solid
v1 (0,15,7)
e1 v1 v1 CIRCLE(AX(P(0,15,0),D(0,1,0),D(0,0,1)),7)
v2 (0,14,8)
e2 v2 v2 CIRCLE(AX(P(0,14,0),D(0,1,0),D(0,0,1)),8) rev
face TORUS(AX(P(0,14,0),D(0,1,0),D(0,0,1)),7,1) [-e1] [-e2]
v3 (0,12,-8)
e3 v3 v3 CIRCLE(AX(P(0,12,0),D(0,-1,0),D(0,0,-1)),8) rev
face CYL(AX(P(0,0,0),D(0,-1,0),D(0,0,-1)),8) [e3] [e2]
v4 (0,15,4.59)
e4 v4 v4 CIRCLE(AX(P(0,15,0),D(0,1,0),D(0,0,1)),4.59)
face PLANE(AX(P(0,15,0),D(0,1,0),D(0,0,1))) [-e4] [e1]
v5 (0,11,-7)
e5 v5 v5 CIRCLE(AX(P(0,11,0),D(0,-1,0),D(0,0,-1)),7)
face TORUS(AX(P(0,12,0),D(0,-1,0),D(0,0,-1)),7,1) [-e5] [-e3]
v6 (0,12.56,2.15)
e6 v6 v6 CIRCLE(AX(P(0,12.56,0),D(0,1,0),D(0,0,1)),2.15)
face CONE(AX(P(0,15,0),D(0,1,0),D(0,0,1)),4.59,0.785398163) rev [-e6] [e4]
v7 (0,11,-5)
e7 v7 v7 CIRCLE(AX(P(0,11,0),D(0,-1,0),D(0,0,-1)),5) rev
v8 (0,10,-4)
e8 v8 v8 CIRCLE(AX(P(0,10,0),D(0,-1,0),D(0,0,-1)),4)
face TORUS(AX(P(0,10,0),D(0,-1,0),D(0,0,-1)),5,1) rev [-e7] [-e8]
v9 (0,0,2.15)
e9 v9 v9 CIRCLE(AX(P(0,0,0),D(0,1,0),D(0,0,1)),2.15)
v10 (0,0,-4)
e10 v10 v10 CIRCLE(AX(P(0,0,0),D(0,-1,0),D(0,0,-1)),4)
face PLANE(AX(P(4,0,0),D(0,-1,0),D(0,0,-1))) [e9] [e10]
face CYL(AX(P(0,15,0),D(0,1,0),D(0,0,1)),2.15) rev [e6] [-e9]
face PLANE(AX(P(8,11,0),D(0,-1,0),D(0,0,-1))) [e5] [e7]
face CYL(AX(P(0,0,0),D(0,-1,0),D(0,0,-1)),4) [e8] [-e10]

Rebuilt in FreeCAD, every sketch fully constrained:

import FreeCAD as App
import Part
import Sketcher


def edges_at(feature, points):
    """Names of the edges that pass closest to the given points."""
    edges = feature.Shape.Edges
    near = lambda p: min(range(len(edges)), key=lambda i: edges[i].distToShape(Part.Vertex(*p))[0])
    return sorted({f"Edge{near(p) + 1}" for p in points})


def add_polygon(sketch, points):
    """Adds a closed chain of lines whose ends are joined by coincident constraints."""
    first, n = sketch.GeometryCount, len(points)
    for a, b in zip(points, points[1:] + points[:1]):
        sketch.addGeometry(Part.LineSegment(App.Vector(*a, 0), App.Vector(*b, 0)), False)
    for i in range(n):
        sketch.addConstraint(Sketcher.Constraint("Coincident", first + i, 2, first + (i + 1) % n, 1))

doc = App.newDocument("Part")
body = doc.addObject("PartDesign::Body", "Body")

sketch1 = doc.addObject("Sketcher::SketchObject", "Sketch")
body.addObject(sketch1)
sketch1.AttachmentSupport = (doc.XY_Plane, [""])
sketch1.MapMode = "FlatFace"
add_polygon(sketch1, [(8, 15), (0, 15), (0, 0), (4, 0), (4, 11), (8, 11)])
sketch1.addConstraint([
    Sketcher.Constraint("Horizontal", 0),
    Sketcher.Constraint("Vertical", 1),
    Sketcher.Constraint("Horizontal", 2),
    Sketcher.Constraint("Vertical", 3),
    Sketcher.Constraint("Horizontal", 4),
    Sketcher.Constraint("Vertical", 5),
    Sketcher.Constraint("Coincident", 1, 2, -1, 1),
    Sketcher.Constraint("Equal", 2, 4),
    Sketcher.Constraint("Equal", 4, 5),
    Sketcher.Constraint("DistanceX", 0, 2, 0, 1, 8.0),
    Sketcher.Constraint("DistanceY", 1, 2, 1, 1, 15.0),
])
revolution = doc.addObject("PartDesign::Revolution", "Revolution")
body.addObject(revolution)
revolution.Profile = sketch1
revolution.ReferenceAxis = (sketch1, ["V_Axis"])
revolution.Angle = 360
doc.recompute()

fillet = doc.addObject("PartDesign::Fillet", "Fillet")
body.addObject(fillet)
fillet.Base = (revolution, edges_at(revolution, [(0, 11, 4), (0, 11, 8), (0, 15, 8)]))
fillet.Radius = 1

sketch2 = doc.addObject("Sketcher::SketchObject", "Sketch001")
body.addObject(sketch2)
sketch2.AttachmentSupport = (doc.XZ_Plane, [""])
sketch2.MapMode = "FlatFace"
sketch2.AttachmentOffset = App.Placement(App.Vector(0, 0, -15), App.Rotation())
sketch2.addGeometry(Part.Circle(App.Vector(0, 0, 0), App.Vector(0, 0, 1), 2.1), False)
sketch2.addConstraint([
    Sketcher.Constraint("Coincident", 0, 3, -1, 1),
    Sketcher.Constraint("Diameter", 0, 4.3),
])
doc.recompute()
hole = doc.addObject("PartDesign::Hole", "Hole")
body.addObject(hole)
hole.Profile = sketch2
hole.ThreadType = "None"
hole.Diameter = 4.3
hole.DepthType = "ThroughAll"
hole.HoleCutType = "Countersink"
hole.HoleCutDiameter = 9.18
hole.HoleCutCountersinkAngle = 90
hole.Reversed = True

doc.recompute()
